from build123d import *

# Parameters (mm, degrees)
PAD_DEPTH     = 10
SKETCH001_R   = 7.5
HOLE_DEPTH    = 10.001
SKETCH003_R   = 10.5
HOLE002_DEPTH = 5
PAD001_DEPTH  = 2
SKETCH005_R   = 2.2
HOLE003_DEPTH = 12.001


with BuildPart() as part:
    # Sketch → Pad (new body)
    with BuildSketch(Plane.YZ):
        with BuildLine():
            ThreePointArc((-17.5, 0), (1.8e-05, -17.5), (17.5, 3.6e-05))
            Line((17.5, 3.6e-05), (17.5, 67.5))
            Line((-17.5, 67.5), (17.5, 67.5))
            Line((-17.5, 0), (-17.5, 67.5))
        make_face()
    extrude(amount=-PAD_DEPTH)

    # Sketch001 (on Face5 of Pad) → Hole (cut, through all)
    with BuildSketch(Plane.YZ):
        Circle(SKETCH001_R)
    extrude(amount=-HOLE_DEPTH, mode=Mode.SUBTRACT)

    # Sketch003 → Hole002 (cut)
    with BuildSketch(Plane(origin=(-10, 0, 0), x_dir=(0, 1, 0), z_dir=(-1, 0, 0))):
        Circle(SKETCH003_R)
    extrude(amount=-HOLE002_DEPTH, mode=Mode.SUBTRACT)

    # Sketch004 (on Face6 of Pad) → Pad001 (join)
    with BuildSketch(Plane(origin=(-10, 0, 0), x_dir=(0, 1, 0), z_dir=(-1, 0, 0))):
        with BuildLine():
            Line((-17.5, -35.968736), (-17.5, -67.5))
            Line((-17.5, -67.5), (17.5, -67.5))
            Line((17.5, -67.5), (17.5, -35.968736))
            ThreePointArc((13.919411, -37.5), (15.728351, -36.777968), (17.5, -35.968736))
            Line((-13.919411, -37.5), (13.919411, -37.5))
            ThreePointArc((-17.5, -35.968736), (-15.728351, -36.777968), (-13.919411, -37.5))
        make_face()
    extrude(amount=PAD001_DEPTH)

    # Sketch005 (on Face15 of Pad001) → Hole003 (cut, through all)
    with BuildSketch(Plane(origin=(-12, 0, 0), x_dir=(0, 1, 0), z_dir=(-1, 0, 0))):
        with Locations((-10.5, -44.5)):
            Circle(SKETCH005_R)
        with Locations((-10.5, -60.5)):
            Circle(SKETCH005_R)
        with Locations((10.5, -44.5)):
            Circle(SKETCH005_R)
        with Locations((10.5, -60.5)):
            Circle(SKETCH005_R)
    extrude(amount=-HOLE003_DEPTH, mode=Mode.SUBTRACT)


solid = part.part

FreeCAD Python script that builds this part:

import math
import FreeCAD as App
import Part
import Sketcher

V = App.Vector
Q = App.Units.Quantity

doc = App.newDocument("Part")
body = doc.addObject("PartDesign::Body", "Body")

sketch1 = body.newObject("Sketcher::SketchObject", "Sketch")
sketch1.AttachmentSupport = (doc.getObject("YZ_Plane"), [""])
sketch1.MapMode = "FlatFace"
sketch1.addGeometry(Part.ArcOfCircle(Part.Circle(V(0, 0, 0), V(0, 0, 1), 18), math.radians(180), math.radians(360)), False)
sketch1.addGeometry(Part.LineSegment(V(18, 0, 0), V(18, 68, 0)), False)
sketch1.addGeometry(Part.LineSegment(V(18, 68, 0), V(-18, 68, 0)), False)
sketch1.addGeometry(Part.LineSegment(V(-18, 68, 0), V(-18, 0, 0)), False)
sketch1.addConstraint(Sketcher.Constraint("Coincident", 0, 2, 1, 1))
sketch1.addConstraint(Sketcher.Constraint("Coincident", 1, 2, 2, 1))
sketch1.addConstraint(Sketcher.Constraint("Coincident", 2, 2, 3, 1))
sketch1.addConstraint(Sketcher.Constraint("Tangent", 3, 2, 0, 1))
sketch1.addConstraint(Sketcher.Constraint("Vertical", 1))
sketch1.addConstraint(Sketcher.Constraint("Horizontal", 2))
sketch1.addConstraint(Sketcher.Constraint("Vertical", 3))
sketch1.addConstraint(Sketcher.Constraint("Coincident", 0, 3, -1, 1))
sketch1.addConstraint(Sketcher.Constraint("Radius", 0, Q("17.5 mm")))
sketch1.addConstraint(Sketcher.Constraint("DistanceY", 3, 2, 3, 1, Q("67.5 mm")))
sketch1.addConstraint(Sketcher.Constraint("DistanceY", 1, 1, 1, 2, Q("67.499964 mm")))
pad1 = body.newObject("PartDesign::Pad", "Pad")
pad1.Profile = sketch1
pad1.Length = 10
pad1.Reversed = True

sketch2 = body.newObject("Sketcher::SketchObject", "Sketch001")
sketch2.AttachmentSupport = (doc.getObject("YZ_Plane"), [""])
sketch2.MapMode = "FlatFace"
sketch2.addGeometry(Part.Circle(V(0, 0, 0), V(0, 0, 1), 8), False)
sketch2.addConstraint(Sketcher.Constraint("Coincident", 0, 3, -1, 1))
sketch2.addConstraint(Sketcher.Constraint("Diameter", 0, Q("15 mm")))
pocket1 = body.newObject("PartDesign::Pocket", "Pocket")
pocket1.Profile = sketch2
pocket1.Type = "ThroughAll"

sketch3 = body.newObject("Sketcher::SketchObject", "Sketch002")
sketch3.AttachmentSupport = (doc.getObject("YZ_Plane"), [""])
sketch3.MapMode = "FlatFace"
sketch3.AttachmentOffset = App.Placement(V(0, 0, -10), App.Rotation())
sketch3.addGeometry(Part.Circle(V(0, 0, 0), V(0, 0, 1), 10), False)
sketch3.addConstraint(Sketcher.Constraint("Coincident", 0, 3, -1, 1))
sketch3.addConstraint(Sketcher.Constraint("Diameter", 0, Q("21 mm")))
pocket2 = body.newObject("PartDesign::Pocket", "Pocket001")
pocket2.Profile = sketch3
pocket2.Length = 5
pocket2.Reversed = True

sketch4 = body.newObject("Sketcher::SketchObject", "Sketch003")
sketch4.AttachmentSupport = (doc.getObject("YZ_Plane"), [""])
sketch4.MapMode = "FlatFace"
sketch4.AttachmentOffset = App.Placement(V(0, 0, -10), App.Rotation())
sketch4.addGeometry(Part.LineSegment(V(-17.5, 35.968736, 0), V(-17.5, 67.5, 0)), False)
sketch4.addGeometry(Part.LineSegment(V(-17.5, 67.5, 0), V(17.5, 67.5, 0)), False)
sketch4.addGeometry(Part.LineSegment(V(17.5, 67.5, 0), V(17.5, 35.968736, 0)), False)
sketch4.addGeometry(Part.ArcOfCircle(Part.Circle(V(-0.000131, -0.000295, 0), V(0, 0, 1), 40.000322), math.radians(64.055536), math.radians(69.635836)), False)
sketch4.addGeometry(Part.LineSegment(V(13.919411, 37.5, 0), V(-13.919411, 37.5, 0)), False)
sketch4.addGeometry(Part.ArcOfCircle(Part.Circle(V(0.000131, -0.000295, 0), V(0, 0, 1), 40.000322), math.radians(110.364164), math.radians(115.944464)), False)
sketch4.addConstraint(Sketcher.Constraint("Coincident", 0, 2, 1, 1))
sketch4.addConstraint(Sketcher.Constraint("Coincident", 1, 2, 2, 1))
sketch4.addConstraint(Sketcher.Constraint("Coincident", 2, 2, 3, 1))
sketch4.addConstraint(Sketcher.Constraint("Coincident", 3, 2, 4, 1))
sketch4.addConstraint(Sketcher.Constraint("Coincident", 4, 2, 5, 1))
sketch4.addConstraint(Sketcher.Constraint("Coincident", 5, 2, 0, 1))
sketch4.addConstraint(Sketcher.Constraint("Vertical", 0))
sketch4.addConstraint(Sketcher.Constraint("Horizontal", 1))
sketch4.addConstraint(Sketcher.Constraint("Vertical", 2))
sketch4.addConstraint(Sketcher.Constraint("Horizontal", 4))
sketch4.addConstraint(Sketcher.Constraint("Equal", 3, 5))
sketch4.addConstraint(Sketcher.Constraint("Symmetric", 3, 3, 5, 3, -2))
sketch4.addConstraint(Sketcher.Constraint("Horizontal", 2, 2, 5, 2))
sketch4.addConstraint(Sketcher.Constraint("DistanceX", 1, 1, 1, 2, Q("35 mm")))
sketch4.addConstraint(Sketcher.Constraint("DistanceY", 3, 2, 1, 2, Q("30 mm")))
sketch4.addConstraint(Sketcher.Constraint("DistanceY", -1, 1, 0, 2, Q("67.5 mm")))
sketch4.addConstraint(Sketcher.Constraint("Radius", 3, Q("40.000322 mm")))
sketch4.addConstraint(Sketcher.Constraint("DistanceX", 4, 2, 4, 1, Q("27.838822 mm")))
sketch4.addConstraint(Sketcher.Constraint("DistanceY", 0, 1, 0, 2, Q("31.531264 mm")))
pad2 = body.newObject("PartDesign::Pad", "Pad001")
pad2.Profile = sketch4
pad2.Length = 2
pad2.Reversed = True

sketch5 = body.newObject("Sketcher::SketchObject", "Sketch004")
sketch5.AttachmentSupport = (doc.getObject("YZ_Plane"), [""])
sketch5.MapMode = "FlatFace"
sketch5.AttachmentOffset = App.Placement(V(0, 0, -12), App.Rotation())
sketch5.addGeometry(Part.Circle(V(-10.5, 44.5, 0), V(0, 0, 1), 2.2), False)
sketch5.addGeometry(Part.Circle(V(-10.5, 60.5, 0), V(0, 0, 1), 2.2), False)
sketch5.addGeometry(Part.Circle(V(10.5, 44.5, 0), V(0, 0, 1), 2.2), False)
sketch5.addGeometry(Part.Circle(V(10.5, 60.5, 0), V(0, 0, 1), 2.2), False)
sketch5.addConstraint(Sketcher.Constraint("Equal", 0, 1))
sketch5.addConstraint(Sketcher.Constraint("Equal", 1, 2))
sketch5.addConstraint(Sketcher.Constraint("Equal", 2, 3))
sketch5.addConstraint(Sketcher.Constraint("Symmetric", 0, 3, 2, 3, -2))
sketch5.addConstraint(Sketcher.Constraint("Symmetric", 1, 3, 3, 3, -2))
sketch5.addConstraint(Sketcher.Constraint("Vertical", 0, 3, 1, 3))
sketch5.addConstraint(Sketcher.Constraint("Diameter", 0, Q("4.4 mm")))
sketch5.addConstraint(Sketcher.Constraint("DistanceY", 0, 3, 1, 3, Q("16 mm")))
sketch5.addConstraint(Sketcher.Constraint("DistanceX", 0, 3, 2, 3, Q("21 mm")))
sketch5.addConstraint(Sketcher.Constraint("DistanceY", -1, 1, 0, 3, Q("44.5 mm")))
pocket3 = body.newObject("PartDesign::Pocket", "Pocket002")
pocket3.Profile = sketch5
pocket3.Type = "ThroughAll"
pocket3.Reversed = True

doc.recompute()
